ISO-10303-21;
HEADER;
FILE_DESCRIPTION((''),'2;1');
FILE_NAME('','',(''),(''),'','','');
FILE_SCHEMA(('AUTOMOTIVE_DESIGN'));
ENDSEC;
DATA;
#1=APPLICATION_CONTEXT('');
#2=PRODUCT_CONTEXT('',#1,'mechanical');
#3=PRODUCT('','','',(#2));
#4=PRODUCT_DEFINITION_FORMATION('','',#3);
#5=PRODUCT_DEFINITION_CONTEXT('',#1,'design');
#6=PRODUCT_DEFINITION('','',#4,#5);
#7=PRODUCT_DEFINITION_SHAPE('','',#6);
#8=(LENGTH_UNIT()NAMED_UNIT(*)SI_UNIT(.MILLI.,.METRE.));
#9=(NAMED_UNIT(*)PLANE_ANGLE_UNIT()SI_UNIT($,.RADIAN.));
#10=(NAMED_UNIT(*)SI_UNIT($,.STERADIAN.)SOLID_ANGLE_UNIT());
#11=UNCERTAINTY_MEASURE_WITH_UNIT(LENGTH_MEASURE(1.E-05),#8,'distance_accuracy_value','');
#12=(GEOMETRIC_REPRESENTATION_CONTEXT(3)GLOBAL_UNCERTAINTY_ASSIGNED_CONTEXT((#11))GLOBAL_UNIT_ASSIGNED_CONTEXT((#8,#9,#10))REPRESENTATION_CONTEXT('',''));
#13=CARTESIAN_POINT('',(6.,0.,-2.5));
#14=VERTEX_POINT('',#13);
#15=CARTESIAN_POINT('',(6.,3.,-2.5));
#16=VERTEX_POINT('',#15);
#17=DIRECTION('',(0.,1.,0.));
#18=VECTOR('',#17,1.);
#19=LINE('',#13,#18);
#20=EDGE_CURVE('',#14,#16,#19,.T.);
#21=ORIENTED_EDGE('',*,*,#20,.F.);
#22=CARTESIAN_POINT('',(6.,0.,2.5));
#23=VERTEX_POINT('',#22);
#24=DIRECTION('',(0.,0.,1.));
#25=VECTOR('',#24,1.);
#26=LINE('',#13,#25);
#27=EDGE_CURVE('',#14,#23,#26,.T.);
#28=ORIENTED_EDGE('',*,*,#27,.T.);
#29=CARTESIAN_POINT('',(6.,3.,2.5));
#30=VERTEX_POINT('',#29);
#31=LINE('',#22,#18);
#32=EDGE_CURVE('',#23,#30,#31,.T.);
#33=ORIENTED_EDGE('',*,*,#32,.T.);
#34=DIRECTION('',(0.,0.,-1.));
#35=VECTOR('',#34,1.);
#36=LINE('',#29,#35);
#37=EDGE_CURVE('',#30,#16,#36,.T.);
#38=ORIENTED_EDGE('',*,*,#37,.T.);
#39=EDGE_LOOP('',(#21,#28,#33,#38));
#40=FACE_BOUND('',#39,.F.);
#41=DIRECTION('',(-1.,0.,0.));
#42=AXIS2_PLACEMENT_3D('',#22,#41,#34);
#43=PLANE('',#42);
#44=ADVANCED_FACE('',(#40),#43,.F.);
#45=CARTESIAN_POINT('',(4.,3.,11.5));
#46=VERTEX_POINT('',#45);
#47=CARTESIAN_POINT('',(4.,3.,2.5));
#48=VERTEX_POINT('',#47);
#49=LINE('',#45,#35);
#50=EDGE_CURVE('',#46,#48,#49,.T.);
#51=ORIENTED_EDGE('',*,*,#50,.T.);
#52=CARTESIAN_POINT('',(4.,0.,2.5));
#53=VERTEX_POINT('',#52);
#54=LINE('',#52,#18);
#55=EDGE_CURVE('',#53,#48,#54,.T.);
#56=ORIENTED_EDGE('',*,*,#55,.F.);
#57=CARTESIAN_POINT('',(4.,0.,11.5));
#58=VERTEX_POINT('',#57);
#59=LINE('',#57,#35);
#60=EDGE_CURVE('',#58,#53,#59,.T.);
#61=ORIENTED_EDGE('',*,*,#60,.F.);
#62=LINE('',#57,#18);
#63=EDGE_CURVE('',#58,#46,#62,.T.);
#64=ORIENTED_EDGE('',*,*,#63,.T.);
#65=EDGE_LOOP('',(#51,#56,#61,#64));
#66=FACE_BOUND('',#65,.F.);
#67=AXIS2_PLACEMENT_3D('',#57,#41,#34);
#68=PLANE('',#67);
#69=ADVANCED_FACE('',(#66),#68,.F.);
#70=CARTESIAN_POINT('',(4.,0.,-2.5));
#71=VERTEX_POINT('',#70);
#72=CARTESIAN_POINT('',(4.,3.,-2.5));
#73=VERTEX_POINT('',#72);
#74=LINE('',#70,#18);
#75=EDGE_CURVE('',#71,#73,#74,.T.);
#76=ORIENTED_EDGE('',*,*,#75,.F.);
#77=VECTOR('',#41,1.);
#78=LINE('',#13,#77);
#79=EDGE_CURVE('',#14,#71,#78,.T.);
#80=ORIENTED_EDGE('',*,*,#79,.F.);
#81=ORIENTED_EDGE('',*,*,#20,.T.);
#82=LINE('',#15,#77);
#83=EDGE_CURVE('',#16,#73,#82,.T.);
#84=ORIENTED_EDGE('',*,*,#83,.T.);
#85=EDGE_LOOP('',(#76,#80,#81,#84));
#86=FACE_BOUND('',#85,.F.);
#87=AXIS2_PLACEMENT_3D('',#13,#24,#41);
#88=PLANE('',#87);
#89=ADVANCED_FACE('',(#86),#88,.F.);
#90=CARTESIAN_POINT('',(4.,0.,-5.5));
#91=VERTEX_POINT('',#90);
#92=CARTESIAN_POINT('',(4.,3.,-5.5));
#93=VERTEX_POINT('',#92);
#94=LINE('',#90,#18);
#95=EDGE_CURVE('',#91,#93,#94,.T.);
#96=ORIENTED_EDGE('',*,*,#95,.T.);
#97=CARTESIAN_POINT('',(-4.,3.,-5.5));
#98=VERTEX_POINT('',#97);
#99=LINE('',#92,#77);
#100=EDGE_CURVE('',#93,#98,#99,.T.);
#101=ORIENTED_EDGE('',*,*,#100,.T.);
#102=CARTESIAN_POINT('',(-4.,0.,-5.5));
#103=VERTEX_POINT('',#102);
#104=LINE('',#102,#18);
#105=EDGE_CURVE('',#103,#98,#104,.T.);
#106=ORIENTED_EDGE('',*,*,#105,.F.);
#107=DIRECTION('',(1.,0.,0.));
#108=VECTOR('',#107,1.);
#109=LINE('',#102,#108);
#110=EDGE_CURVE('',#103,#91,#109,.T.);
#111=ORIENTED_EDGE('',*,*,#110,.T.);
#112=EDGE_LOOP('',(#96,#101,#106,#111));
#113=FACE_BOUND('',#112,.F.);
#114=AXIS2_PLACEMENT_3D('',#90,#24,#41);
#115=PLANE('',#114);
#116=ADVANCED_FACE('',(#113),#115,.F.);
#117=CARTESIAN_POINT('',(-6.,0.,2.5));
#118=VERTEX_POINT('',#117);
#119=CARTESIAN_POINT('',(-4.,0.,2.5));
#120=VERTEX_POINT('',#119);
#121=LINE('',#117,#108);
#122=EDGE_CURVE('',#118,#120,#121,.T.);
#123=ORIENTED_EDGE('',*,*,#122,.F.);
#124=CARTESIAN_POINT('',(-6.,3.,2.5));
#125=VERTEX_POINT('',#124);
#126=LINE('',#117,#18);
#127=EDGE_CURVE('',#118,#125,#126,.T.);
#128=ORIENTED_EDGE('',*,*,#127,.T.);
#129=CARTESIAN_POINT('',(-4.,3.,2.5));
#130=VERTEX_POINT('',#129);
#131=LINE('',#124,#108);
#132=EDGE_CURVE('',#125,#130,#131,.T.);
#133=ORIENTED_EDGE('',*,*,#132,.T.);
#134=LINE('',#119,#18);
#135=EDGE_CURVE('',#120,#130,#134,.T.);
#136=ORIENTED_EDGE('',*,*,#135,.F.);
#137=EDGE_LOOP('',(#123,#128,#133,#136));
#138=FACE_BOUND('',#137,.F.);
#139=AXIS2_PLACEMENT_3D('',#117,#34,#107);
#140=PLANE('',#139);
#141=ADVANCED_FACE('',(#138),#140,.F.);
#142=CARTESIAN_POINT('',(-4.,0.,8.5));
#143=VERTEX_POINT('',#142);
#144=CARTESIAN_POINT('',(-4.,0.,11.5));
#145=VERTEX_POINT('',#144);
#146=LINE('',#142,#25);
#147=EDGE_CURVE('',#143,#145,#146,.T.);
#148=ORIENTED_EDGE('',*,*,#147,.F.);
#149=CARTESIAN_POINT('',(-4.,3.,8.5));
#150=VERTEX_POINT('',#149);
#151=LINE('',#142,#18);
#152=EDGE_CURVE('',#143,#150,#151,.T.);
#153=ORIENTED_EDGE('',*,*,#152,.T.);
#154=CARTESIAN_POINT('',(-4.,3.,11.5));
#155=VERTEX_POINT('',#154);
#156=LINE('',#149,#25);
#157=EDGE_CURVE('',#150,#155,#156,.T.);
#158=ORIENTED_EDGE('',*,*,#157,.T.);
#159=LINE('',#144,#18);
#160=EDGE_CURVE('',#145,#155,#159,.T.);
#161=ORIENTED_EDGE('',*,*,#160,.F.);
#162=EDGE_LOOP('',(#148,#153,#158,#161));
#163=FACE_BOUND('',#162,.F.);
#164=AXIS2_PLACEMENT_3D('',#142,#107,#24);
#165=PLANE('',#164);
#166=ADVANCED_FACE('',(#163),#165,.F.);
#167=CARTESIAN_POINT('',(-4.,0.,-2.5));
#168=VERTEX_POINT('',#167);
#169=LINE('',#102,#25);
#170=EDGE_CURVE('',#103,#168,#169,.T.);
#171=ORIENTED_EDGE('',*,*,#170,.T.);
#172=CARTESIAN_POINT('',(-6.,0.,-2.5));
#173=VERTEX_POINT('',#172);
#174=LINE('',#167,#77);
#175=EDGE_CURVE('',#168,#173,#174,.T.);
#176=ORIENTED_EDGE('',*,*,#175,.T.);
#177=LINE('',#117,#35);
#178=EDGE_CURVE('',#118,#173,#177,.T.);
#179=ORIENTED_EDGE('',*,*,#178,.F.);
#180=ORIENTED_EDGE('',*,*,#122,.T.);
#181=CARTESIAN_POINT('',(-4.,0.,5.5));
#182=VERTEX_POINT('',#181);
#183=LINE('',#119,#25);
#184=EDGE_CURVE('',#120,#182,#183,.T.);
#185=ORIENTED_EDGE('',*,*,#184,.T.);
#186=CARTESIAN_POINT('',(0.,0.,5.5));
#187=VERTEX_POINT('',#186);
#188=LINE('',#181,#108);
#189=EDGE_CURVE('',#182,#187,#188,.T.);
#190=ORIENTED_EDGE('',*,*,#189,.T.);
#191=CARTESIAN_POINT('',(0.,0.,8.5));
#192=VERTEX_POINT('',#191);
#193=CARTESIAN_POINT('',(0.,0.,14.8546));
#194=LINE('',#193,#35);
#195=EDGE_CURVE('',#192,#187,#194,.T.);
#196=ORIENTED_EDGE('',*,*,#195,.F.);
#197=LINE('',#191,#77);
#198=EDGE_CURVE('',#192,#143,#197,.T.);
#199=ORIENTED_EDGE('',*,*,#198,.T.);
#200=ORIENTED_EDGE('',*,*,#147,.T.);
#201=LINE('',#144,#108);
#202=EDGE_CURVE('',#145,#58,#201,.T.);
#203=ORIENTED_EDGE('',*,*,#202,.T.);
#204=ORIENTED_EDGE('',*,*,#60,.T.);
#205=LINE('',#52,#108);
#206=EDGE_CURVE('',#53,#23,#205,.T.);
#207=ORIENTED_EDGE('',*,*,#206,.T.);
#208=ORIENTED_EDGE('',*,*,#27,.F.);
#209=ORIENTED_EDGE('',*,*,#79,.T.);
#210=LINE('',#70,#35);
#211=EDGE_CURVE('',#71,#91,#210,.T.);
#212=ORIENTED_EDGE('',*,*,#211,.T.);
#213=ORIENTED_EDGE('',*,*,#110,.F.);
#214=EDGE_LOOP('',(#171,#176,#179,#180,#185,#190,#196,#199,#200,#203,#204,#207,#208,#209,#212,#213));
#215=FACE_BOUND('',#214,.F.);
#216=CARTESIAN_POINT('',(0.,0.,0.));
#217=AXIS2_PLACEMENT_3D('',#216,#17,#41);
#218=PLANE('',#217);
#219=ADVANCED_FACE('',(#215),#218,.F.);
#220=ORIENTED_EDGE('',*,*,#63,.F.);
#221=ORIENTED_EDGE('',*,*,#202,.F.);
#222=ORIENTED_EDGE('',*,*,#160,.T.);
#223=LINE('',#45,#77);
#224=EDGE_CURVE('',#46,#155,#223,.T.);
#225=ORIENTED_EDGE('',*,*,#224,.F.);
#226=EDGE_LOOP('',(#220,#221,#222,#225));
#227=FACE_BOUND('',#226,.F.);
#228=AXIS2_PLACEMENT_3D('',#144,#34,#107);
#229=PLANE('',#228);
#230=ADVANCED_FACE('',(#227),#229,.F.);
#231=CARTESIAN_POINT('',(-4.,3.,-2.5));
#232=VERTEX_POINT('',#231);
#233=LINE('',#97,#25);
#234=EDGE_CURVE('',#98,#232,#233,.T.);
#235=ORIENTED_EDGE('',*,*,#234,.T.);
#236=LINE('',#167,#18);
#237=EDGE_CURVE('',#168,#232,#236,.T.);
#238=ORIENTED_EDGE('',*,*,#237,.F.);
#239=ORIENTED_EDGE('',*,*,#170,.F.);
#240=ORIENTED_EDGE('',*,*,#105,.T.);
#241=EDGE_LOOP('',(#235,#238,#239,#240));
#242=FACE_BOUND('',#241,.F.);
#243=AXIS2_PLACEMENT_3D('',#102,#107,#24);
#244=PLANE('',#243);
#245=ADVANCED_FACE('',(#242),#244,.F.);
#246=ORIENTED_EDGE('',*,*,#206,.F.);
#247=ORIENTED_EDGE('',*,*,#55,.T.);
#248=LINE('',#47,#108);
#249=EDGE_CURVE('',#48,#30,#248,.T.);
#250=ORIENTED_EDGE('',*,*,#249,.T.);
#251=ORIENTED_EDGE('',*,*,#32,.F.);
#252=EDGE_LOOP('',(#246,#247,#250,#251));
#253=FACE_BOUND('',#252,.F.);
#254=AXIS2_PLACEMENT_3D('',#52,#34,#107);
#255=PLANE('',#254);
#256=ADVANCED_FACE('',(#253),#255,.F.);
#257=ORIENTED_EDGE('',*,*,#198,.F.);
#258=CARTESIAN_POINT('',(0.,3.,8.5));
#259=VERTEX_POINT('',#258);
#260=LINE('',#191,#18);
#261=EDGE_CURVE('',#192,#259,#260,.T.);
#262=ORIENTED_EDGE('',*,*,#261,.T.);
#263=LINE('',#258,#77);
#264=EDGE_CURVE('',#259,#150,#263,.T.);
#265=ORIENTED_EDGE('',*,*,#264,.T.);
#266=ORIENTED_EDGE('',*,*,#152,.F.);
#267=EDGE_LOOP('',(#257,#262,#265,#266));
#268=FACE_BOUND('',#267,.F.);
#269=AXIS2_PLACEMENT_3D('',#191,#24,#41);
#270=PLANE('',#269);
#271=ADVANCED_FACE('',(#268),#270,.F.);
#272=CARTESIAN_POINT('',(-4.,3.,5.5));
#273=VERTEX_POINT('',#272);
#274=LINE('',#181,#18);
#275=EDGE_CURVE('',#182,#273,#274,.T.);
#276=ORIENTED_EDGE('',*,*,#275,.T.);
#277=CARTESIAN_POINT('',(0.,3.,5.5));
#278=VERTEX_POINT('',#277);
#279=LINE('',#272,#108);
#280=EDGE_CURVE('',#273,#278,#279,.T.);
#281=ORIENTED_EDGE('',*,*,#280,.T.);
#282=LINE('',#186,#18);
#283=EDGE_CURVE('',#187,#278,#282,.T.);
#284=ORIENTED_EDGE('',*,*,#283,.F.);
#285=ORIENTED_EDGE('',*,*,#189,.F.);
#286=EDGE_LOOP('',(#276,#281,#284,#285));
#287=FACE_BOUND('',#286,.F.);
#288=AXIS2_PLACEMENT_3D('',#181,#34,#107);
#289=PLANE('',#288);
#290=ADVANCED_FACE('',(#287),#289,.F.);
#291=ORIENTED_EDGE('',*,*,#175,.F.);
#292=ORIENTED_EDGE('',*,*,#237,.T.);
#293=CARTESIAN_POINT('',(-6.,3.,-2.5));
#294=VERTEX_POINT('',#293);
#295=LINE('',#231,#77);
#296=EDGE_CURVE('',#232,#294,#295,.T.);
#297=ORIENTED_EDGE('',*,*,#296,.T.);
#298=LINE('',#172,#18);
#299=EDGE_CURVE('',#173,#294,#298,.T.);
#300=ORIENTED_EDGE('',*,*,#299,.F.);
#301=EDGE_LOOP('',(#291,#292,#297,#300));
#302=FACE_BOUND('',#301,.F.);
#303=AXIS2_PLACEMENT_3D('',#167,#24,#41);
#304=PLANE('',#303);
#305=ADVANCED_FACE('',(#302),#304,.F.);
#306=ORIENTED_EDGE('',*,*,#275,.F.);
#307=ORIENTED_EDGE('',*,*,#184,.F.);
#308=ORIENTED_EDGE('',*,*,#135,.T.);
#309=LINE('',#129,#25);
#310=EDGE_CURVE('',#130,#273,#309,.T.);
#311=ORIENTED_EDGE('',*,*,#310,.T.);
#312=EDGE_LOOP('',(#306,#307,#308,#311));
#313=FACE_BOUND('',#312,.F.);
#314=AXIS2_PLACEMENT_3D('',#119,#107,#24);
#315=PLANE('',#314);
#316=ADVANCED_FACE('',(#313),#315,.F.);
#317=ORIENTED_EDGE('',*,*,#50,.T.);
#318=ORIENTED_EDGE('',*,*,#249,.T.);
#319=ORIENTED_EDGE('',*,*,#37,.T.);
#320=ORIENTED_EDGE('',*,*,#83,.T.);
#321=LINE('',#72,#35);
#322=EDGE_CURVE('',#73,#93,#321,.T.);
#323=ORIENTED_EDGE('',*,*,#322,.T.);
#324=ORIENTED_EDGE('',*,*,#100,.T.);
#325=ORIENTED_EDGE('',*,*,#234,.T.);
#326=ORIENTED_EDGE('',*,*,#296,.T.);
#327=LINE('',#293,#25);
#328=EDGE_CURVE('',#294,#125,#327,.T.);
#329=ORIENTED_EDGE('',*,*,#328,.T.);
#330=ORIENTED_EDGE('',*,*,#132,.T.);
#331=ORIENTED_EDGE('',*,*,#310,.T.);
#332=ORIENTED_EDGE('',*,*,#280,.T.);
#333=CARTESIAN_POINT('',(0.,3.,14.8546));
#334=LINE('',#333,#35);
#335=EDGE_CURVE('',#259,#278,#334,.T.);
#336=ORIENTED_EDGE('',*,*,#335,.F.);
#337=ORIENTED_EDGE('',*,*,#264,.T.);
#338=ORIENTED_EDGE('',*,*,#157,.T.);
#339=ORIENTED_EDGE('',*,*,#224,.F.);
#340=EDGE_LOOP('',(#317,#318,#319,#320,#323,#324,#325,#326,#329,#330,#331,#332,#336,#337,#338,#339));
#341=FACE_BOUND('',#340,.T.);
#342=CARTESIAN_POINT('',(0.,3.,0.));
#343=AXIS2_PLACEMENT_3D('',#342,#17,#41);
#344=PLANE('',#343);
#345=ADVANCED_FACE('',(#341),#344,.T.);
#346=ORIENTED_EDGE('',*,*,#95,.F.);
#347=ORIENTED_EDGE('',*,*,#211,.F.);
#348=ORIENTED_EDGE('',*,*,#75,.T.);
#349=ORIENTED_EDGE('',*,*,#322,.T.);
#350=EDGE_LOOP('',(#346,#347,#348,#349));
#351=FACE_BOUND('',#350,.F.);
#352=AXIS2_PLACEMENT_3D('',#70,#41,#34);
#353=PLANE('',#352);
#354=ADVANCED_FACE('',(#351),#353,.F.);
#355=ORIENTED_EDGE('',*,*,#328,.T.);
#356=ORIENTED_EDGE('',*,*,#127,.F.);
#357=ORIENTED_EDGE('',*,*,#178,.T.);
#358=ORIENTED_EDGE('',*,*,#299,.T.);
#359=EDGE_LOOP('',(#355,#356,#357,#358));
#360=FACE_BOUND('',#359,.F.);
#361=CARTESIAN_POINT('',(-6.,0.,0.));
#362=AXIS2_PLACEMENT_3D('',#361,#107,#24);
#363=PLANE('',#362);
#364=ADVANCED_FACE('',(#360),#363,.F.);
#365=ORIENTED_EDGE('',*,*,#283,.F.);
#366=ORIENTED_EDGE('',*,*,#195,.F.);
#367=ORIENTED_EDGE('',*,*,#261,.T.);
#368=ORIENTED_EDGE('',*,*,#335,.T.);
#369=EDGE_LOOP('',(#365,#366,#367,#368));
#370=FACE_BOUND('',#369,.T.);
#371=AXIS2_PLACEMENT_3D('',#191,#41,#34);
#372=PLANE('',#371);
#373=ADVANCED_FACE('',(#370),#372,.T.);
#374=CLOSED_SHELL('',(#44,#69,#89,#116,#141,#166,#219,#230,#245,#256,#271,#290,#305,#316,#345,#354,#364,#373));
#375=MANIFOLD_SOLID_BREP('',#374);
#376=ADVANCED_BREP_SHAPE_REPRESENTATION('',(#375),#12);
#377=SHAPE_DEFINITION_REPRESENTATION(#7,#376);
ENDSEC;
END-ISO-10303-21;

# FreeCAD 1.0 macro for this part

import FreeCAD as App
import Part
import Sketcher
Q = App.Units.Quantity

doc = App.newDocument("Part")
body = doc.addObject("PartDesign::Body", "Body")

# Sketch on XZ plane
sketch1 = body.newObject("Sketcher::SketchObject", "Sketch")
sketch1.AttachmentSupport = (doc.getObject("XZ_Plane"), [""])
sketch1.MapMode = "FlatFace"
sketch1.addGeometry([
    Part.LineSegment(App.Vector(-4, 8.5, 0), App.Vector(-4, 11.5, 0)),  # 0
    Part.LineSegment(App.Vector(-4, 11.5, 0), App.Vector(4, 11.5, 0)),  # 1
    Part.LineSegment(App.Vector(4, 11.5, 0), App.Vector(4, 2.5, 0)),  # 2
    Part.LineSegment(App.Vector(4, 2.5, 0), App.Vector(6, 2.5, 0)),  # 3
    Part.LineSegment(App.Vector(6, 2.5, 0), App.Vector(6, -2.5, 0)),  # 4
    Part.LineSegment(App.Vector(6, -2.5, 0), App.Vector(4, -2.5, 0)),  # 5
    Part.LineSegment(App.Vector(4, -2.5, 0), App.Vector(4, -5.5, 0)),  # 6
    Part.LineSegment(App.Vector(4, -5.5, 0), App.Vector(-4, -5.5, 0)),  # 7
    Part.LineSegment(App.Vector(-4, -5.5, 0), App.Vector(-4, -2.5, 0)),  # 8
    Part.LineSegment(App.Vector(-4, -2.5, 0), App.Vector(-6, -2.5, 0)),  # 9
    Part.LineSegment(App.Vector(-6, -2.5, 0), App.Vector(-6, 2.5, 0)),  # 10
    Part.LineSegment(App.Vector(-6, 2.5, 0), App.Vector(-4, 2.5, 0)),  # 11
    Part.LineSegment(App.Vector(-4, 2.5, 0), App.Vector(-4, 5.5, 0)),  # 12
    Part.LineSegment(App.Vector(-4, 5.5, 0), App.Vector(0, 5.5, 0)),  # 13
    Part.LineSegment(App.Vector(0, 5.5, 0), App.Vector(0, 8.5, 0)),  # 14
    Part.LineSegment(App.Vector(0, 8.5, 0), App.Vector(-4, 8.5, 0)),  # 15
], False)
sketch1.addConstraint([
    Sketcher.Constraint("Coincident", 0, 2, 1, 1),
    Sketcher.Constraint("Coincident", 1, 2, 2, 1),
    Sketcher.Constraint("Coincident", 2, 2, 3, 1),
    Sketcher.Constraint("Coincident", 3, 2, 4, 1),
    Sketcher.Constraint("Coincident", 4, 2, 5, 1),
    Sketcher.Constraint("Coincident", 5, 2, 6, 1),
    Sketcher.Constraint("Coincident", 6, 2, 7, 1),
    Sketcher.Constraint("Coincident", 7, 2, 8, 1),
    Sketcher.Constraint("Coincident", 8, 2, 9, 1),
    Sketcher.Constraint("Coincident", 9, 2, 10, 1),
    Sketcher.Constraint("Coincident", 10, 2, 11, 1),
    Sketcher.Constraint("Coincident", 11, 2, 12, 1),
    Sketcher.Constraint("Coincident", 12, 2, 13, 1),
    Sketcher.Constraint("Coincident", 13, 2, 14, 1),
    Sketcher.Constraint("Coincident", 14, 2, 15, 1),
    Sketcher.Constraint("Coincident", 15, 2, 0, 1),
    Sketcher.Constraint("Vertical", 0),
    Sketcher.Constraint("Horizontal", 1),
    Sketcher.Constraint("Vertical", 2),
    Sketcher.Constraint("Horizontal", 3),
    Sketcher.Constraint("Vertical", 4),
    Sketcher.Constraint("Horizontal", 5),
    Sketcher.Constraint("Vertical", 6),
    Sketcher.Constraint("Horizontal", 7),
    Sketcher.Constraint("Vertical", 8),
    Sketcher.Constraint("Horizontal", 9),
    Sketcher.Constraint("Vertical", 10),
    Sketcher.Constraint("Horizontal", 11),
    Sketcher.Constraint("Vertical", 12),
    Sketcher.Constraint("Horizontal", 13),
    Sketcher.Constraint("Vertical", 14),
    Sketcher.Constraint("Horizontal", 15),
    Sketcher.Constraint("Symmetric", 2, 2, 8, 2, -1, 1),
    Sketcher.Constraint("Symmetric", 4, 2, 10, 2, -1, 1),
    Sketcher.Constraint("Symmetric", 6, 2, 12, 2, -1, 1),
    Sketcher.Constraint("Symmetric", 5, 2, 8, 2, -2),
    Sketcher.Constraint("PointOnObject", 13, 2, -2),
    Sketcher.Constraint("Vertical", 0, 2, 7, 2),
    Sketcher.Constraint("Equal", 0, 6),
    Sketcher.Constraint("Equal", 12, 14),
    Sketcher.Constraint("DistanceX", 1, 1, 1, 2, Q("8 mm")),
    Sketcher.Constraint("DistanceY", 0, 1, 0, 2, Q("3 mm")),
    Sketcher.Constraint("DistanceY", 4, 2, 4, 1, Q("5 mm")),
    Sketcher.Constraint("DistanceX", 3, 1, 3, 2, Q("2 mm")),
])
pad1 = body.newObject("PartDesign::Pad", "Pad")
pad1.Profile = sketch1
pad1.Length = 3
pad1.Reversed = True

doc.recompute()
